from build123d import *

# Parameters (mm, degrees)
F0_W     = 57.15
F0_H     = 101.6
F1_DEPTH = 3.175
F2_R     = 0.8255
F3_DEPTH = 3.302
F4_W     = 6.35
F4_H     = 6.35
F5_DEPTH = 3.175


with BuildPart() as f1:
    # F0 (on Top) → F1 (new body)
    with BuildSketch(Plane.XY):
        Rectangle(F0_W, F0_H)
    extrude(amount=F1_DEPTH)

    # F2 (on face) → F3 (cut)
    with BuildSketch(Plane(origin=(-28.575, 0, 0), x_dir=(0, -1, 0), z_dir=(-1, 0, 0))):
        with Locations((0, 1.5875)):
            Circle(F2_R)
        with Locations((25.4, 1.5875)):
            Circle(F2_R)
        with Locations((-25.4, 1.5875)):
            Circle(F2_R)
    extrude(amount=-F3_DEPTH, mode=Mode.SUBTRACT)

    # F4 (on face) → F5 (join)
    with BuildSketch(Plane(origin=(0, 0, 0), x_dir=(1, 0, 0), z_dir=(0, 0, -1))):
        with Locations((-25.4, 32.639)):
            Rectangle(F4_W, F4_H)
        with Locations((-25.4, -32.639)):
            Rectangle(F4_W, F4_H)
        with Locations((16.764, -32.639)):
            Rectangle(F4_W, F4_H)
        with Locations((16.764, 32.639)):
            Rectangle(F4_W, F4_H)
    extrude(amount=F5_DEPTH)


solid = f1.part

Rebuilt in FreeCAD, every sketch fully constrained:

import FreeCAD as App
import Part
import Sketcher

V = App.Vector
Q = App.Units.Quantity


def add_polygon(sketch, points):
    """Adds a closed chain of lines whose ends are joined by coincident constraints."""
    first, n = sketch.GeometryCount, len(points)
    for a, b in zip(points, points[1:] + points[:1]):
        sketch.addGeometry(Part.LineSegment(App.Vector(*a, 0), App.Vector(*b, 0)), False)
    for i in range(n):
        sketch.addConstraint(Sketcher.Constraint("Coincident", first + i, 2, first + (i + 1) % n, 1))

doc = App.newDocument("Part")
body = doc.addObject("PartDesign::Body", "Body")

# Sketch on XY plane
sketch1 = doc.addObject("Sketcher::SketchObject", "Sketch")
body.addObject(sketch1)
sketch1.AttachmentSupport = (doc.XY_Plane, [""])
sketch1.MapMode = "FlatFace"
add_polygon(sketch1, [(-29, 51), (-29, -51), (29, -51), (29, 51)])  # lines 0-3
sketch1.addConstraint(Sketcher.Constraint("Vertical", 0))
sketch1.addConstraint(Sketcher.Constraint("Horizontal", 1))
sketch1.addConstraint(Sketcher.Constraint("Vertical", 2))
sketch1.addConstraint(Sketcher.Constraint("Horizontal", 3))
sketch1.addConstraint(Sketcher.Constraint("Symmetric", 0, 2, 2, 2, -1, 1))
sketch1.addConstraint(Sketcher.Constraint("DistanceY", 0, 2, 0, 1, Q("4 in")))
sketch1.addConstraint(Sketcher.Constraint("DistanceX", 1, 1, 1, 2, Q("2.25 in")))
pad1 = doc.addObject("PartDesign::Pad", "Pad")
body.addObject(pad1)
pad1.Profile = sketch1
pad1.Length = Q("0.125 in")

# Sketch on YZ plane
sketch2 = doc.addObject("Sketcher::SketchObject", "Sketch001")
body.addObject(sketch2)
sketch2.AttachmentSupport = (doc.YZ_Plane, [""])
sketch2.MapMode = "FlatFace"
sketch2.AttachmentOffset = App.Placement(V(0, 0, -1.125 * 25.4), App.Rotation())
sketch2.addGeometry(Part.Circle(V(0, 1.6, 0), V(0, 0, 1), 0.8), False)
sketch2.addGeometry(Part.Circle(V(-25.4, 1.6, 0), V(0, 0, 1), 0.8), False)
sketch2.addGeometry(Part.Circle(V(25.4, 1.6, 0), V(0, 0, 1), 0.8), False)
sketch2.addConstraint(Sketcher.Constraint("Equal", 0, 1))
sketch2.addConstraint(Sketcher.Constraint("Equal", 1, 2))
sketch2.addConstraint(Sketcher.Constraint("Symmetric", 1, 3, 2, 3, -2))
sketch2.addConstraint(Sketcher.Constraint("PointOnObject", 0, 3, -2))
sketch2.addConstraint(Sketcher.Constraint("Horizontal", 0, 3, 1, 3))
sketch2.addConstraint(Sketcher.Constraint("Diameter", 0, Q("0.065 in")))
sketch2.addConstraint(Sketcher.Constraint("DistanceX", 1, 3, -1, 1, Q("1 in")))
sketch2.addConstraint(Sketcher.Constraint("DistanceY", -1, 1, 0, 3, Q("0.0625 in")))
pocket1 = doc.addObject("PartDesign::Pocket", "Pocket")
body.addObject(pocket1)
pocket1.Profile = sketch2
pocket1.Length = Q("0.13 in")
pocket1.Reversed = True

# Sketch on XY plane
sketch3 = doc.addObject("Sketcher::SketchObject", "Sketch002")
body.addObject(sketch3)
sketch3.AttachmentSupport = (doc.XY_Plane, [""])
sketch3.MapMode = "FlatFace"
add_polygon(sketch3, [(-29, -36), (-29, -29), (-22, -29), (-22, -36)])  # lines 0-3
add_polygon(sketch3, [(-29, 29), (-29, 36), (-22, 36), (-22, 29)])  # lines 4-7
add_polygon(sketch3, [(14, 29), (14, 36), (20, 36), (20, 29)])  # lines 8-11
add_polygon(sketch3, [(14, -36), (14, -29), (20, -29), (20, -36)])  # lines 12-15
sketch3.addConstraint(Sketcher.Constraint("Vertical", 0))
sketch3.addConstraint(Sketcher.Constraint("Horizontal", 1))
sketch3.addConstraint(Sketcher.Constraint("Vertical", 2))
sketch3.addConstraint(Sketcher.Constraint("Horizontal", 3))
sketch3.addConstraint(Sketcher.Constraint("Vertical", 4))
sketch3.addConstraint(Sketcher.Constraint("Horizontal", 5))
sketch3.addConstraint(Sketcher.Constraint("Vertical", 6))
sketch3.addConstraint(Sketcher.Constraint("Horizontal", 7))
sketch3.addConstraint(Sketcher.Constraint("Vertical", 8))
sketch3.addConstraint(Sketcher.Constraint("Horizontal", 9))
sketch3.addConstraint(Sketcher.Constraint("Vertical", 10))
sketch3.addConstraint(Sketcher.Constraint("Horizontal", 11))
sketch3.addConstraint(Sketcher.Constraint("Vertical", 12))
sketch3.addConstraint(Sketcher.Constraint("Horizontal", 13))
sketch3.addConstraint(Sketcher.Constraint("Vertical", 14))
sketch3.addConstraint(Sketcher.Constraint("Horizontal", 15))
sketch3.addConstraint(Sketcher.Constraint("Symmetric", 3, 2, 4, 2, -1))
sketch3.addConstraint(Sketcher.Constraint("Symmetric", 1, 2, 6, 2, -1))
sketch3.addConstraint(Sketcher.Constraint("Symmetric", 11, 2, 12, 2, -1))
sketch3.addConstraint(Sketcher.Constraint("Symmetric", 9, 2, 14, 2, -1))
sketch3.addConstraint(Sketcher.Constraint("Horizontal", 5, 2, 8, 2))
sketch3.addConstraint(Sketcher.Constraint("Horizontal", 7, 2, 10, 2))
sketch3.addConstraint(Sketcher.Constraint("Equal", 7, 9))
sketch3.addConstraint(Sketcher.Constraint("Equal", 15, 0))
sketch3.addConstraint(Sketcher.Constraint("DistanceX", 1, 1, 1, 2, Q("0.25 in")))
sketch3.addConstraint(Sketcher.Constraint("DistanceY", 0, 2, -1, 1, Q("1.16 in")))
sketch3.addConstraint(Sketcher.Constraint("DistanceX", 5, 2, 8, 2, Q("1.41 in")))
sketch3.addConstraint(Sketcher.Constraint("DistanceX", 0, 2, -1, 1, Q("1.125 in")))
pad2 = doc.addObject("PartDesign::Pad", "Pad001")
body.addObject(pad2)
pad2.Profile = sketch3
pad2.Length = Q("0.125 in")
pad2.Reversed = True

doc.recompute()
